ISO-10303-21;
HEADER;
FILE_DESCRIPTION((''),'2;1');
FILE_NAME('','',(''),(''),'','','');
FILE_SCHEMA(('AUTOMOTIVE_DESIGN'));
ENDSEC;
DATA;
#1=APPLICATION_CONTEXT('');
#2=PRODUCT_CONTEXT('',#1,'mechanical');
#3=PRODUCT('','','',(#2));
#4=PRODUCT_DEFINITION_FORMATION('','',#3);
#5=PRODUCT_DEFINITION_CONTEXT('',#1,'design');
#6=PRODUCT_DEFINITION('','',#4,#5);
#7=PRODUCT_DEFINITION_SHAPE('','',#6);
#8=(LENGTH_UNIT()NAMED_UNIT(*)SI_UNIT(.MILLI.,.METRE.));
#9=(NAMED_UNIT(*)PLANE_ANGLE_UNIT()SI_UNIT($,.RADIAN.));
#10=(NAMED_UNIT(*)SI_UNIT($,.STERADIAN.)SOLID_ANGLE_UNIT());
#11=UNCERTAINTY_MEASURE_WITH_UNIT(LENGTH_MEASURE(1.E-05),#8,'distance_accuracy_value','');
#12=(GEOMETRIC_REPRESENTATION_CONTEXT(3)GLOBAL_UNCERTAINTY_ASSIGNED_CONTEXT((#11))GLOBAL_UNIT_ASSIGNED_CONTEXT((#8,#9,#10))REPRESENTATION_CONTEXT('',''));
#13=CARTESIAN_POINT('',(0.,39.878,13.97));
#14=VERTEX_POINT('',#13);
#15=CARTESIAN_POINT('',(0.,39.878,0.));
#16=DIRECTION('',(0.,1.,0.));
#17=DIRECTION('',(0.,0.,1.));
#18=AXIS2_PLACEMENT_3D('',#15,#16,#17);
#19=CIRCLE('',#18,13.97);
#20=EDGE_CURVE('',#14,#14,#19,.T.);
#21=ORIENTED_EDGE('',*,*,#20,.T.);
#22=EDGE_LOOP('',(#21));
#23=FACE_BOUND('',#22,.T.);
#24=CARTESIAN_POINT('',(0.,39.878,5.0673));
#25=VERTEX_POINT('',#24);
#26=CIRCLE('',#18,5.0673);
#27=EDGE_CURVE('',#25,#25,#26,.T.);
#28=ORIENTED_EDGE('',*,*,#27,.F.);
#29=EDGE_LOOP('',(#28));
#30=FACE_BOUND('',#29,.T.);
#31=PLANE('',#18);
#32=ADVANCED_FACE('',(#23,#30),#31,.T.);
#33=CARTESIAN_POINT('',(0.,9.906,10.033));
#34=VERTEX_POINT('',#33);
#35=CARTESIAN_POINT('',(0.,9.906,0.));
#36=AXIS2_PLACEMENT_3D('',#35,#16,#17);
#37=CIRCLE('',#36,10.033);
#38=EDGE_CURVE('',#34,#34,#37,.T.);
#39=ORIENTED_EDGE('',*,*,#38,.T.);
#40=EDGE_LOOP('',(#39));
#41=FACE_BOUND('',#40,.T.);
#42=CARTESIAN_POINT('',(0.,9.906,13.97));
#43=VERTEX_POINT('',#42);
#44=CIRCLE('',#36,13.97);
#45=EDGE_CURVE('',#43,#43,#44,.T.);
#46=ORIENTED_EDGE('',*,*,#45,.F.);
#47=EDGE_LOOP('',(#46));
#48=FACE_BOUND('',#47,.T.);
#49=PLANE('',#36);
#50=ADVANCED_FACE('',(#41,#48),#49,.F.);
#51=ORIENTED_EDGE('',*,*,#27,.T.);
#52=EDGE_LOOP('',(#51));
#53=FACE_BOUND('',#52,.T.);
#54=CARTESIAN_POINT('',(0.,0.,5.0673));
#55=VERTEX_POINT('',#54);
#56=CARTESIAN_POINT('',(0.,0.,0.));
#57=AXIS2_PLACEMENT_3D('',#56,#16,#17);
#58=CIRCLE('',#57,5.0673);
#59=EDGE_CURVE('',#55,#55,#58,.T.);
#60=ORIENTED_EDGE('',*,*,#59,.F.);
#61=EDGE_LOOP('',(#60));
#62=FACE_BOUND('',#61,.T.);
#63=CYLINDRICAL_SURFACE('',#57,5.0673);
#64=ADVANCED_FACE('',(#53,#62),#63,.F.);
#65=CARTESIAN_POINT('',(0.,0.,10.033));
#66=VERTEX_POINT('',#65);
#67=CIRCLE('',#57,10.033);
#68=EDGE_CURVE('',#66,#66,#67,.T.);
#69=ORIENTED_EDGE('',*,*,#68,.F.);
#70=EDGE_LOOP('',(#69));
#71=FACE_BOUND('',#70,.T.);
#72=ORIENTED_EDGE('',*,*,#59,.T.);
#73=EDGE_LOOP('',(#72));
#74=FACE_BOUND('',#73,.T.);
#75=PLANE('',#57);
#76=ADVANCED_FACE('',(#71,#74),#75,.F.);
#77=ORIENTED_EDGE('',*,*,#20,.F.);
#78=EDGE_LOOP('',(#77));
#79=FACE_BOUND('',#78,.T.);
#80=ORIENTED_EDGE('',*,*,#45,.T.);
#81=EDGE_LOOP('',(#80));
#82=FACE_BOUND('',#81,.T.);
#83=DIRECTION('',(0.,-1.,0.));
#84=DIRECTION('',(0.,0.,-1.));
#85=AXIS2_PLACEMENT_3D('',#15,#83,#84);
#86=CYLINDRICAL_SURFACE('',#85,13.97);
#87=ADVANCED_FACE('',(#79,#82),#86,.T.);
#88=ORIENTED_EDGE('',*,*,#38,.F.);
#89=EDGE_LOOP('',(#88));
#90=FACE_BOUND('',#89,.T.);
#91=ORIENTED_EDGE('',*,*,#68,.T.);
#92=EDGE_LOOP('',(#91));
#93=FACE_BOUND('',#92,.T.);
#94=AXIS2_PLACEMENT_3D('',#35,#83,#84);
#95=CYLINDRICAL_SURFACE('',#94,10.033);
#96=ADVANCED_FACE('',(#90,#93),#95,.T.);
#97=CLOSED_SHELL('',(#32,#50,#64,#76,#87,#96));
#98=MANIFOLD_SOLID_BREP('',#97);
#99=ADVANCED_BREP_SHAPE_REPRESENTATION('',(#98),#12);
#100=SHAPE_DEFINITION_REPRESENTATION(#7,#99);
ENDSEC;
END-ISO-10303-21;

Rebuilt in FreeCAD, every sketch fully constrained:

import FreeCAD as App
import Part
import Sketcher
from FreeCAD import Vector
Q = App.Units.Quantity

doc = App.newDocument("Part")
body = doc.addObject("PartDesign::Body", "Body")

# Sketch on XZ plane
sketch1 = body.newObject("Sketcher::SketchObject", "Sketch")
sketch1.AttachmentSupport = (doc.getObject("XZ_Plane"), [""])
sketch1.MapMode = "FlatFace"
sketch1.addGeometry(Part.Circle(Vector(0, 0, 0), Vector(0, 0, 1), 10), False)
sketch1.addConstraint([
    Sketcher.Constraint("Coincident", 0, 3, -1, 1),
    Sketcher.Constraint("Diameter", 0, Q("0.79 in")),
])
pad1 = body.newObject("PartDesign::Pad", "Pad")
pad1.Profile = sketch1
pad1.Length = Q("0.39 in")
pad1.Reversed = True

# Sketch on XZ plane
sketch2 = body.newObject("Sketcher::SketchObject", "Sketch001")
sketch2.AttachmentSupport = (doc.getObject("XZ_Plane"), [""])
sketch2.MapMode = "FlatFace"
sketch2.AttachmentOffset = App.Placement(Vector(0, 0, -0.39 * 25.4), App.Rotation())
sketch2.addGeometry(Part.Circle(Vector(0, 0, 0), Vector(0, 0, 1), 14), False)
sketch2.addConstraint([
    Sketcher.Constraint("Coincident", 0, 3, -1, 1),
    Sketcher.Constraint("Diameter", 0, Q("1.1 in")),
])
pad2 = body.newObject("PartDesign::Pad", "Pad001")
pad2.Profile = sketch2
pad2.Length = Q("1.18 in")
pad2.Reversed = True

# Sketch on XZ plane
sketch3 = body.newObject("Sketcher::SketchObject", "Sketch002")
sketch3.AttachmentSupport = (doc.getObject("XZ_Plane"), [""])
sketch3.MapMode = "FlatFace"
sketch3.AttachmentOffset = App.Placement(Vector(0, 0, -1.57 * 25.4), App.Rotation())
sketch3.addGeometry(Part.Circle(Vector(0, 0, 0), Vector(0, 0, 1), 5), False)
sketch3.addConstraint([
    Sketcher.Constraint("Coincident", 0, 3, -1, 1),
    Sketcher.Constraint("Diameter", 0, Q("0.399 in")),
])
pocket1 = body.newObject("PartDesign::Pocket", "Pocket")
pocket1.Profile = sketch3
pocket1.Type = "ThroughAll"
pocket1.Reversed = True

doc.recompute()
